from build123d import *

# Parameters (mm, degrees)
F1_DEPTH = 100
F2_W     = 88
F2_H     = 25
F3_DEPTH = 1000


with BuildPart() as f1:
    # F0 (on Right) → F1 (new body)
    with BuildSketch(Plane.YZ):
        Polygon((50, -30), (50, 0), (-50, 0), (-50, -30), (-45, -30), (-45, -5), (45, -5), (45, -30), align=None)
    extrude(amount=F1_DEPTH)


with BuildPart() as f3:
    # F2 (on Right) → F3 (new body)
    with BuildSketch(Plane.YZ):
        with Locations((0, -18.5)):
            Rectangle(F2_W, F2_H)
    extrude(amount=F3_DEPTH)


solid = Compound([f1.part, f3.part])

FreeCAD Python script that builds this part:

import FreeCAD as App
import Part
import Sketcher
from FreeCAD import Vector
Q = App.Units.Quantity

doc = App.newDocument("Part")
body = doc.addObject("PartDesign::Body", "Body")

sketch1 = doc.addObject("Sketcher::SketchObject", "Sketch")
body.addObject(sketch1)
sketch1.AttachmentSupport = (doc.YZ_Plane, [""])
sketch1.MapMode = "FlatFace"
sketch1.addGeometry([
    Part.LineSegment(Vector(50, -30, 0), Vector(50, 0, 0)),
    Part.LineSegment(Vector(50, 0, 0), Vector(-50, 0, 0)),
    Part.LineSegment(Vector(-50, 0, 0), Vector(-50, -30, 0)),
    Part.LineSegment(Vector(-50, -30, 0), Vector(-45, -30, 0)),
    Part.LineSegment(Vector(-45, -30, 0), Vector(-45, -5, 0)),
    Part.LineSegment(Vector(-45, -5, 0), Vector(45, -5, 0)),
    Part.LineSegment(Vector(45, -5, 0), Vector(45, -30, 0)),
    Part.LineSegment(Vector(45, -30, 0), Vector(50, -30, 0)),
], False)
sketch1.addConstraint([
    Sketcher.Constraint("Coincident", 0, 2, 1, 1),
    Sketcher.Constraint("Coincident", 1, 2, 2, 1),
    Sketcher.Constraint("Coincident", 2, 2, 3, 1),
    Sketcher.Constraint("Coincident", 3, 2, 4, 1),
    Sketcher.Constraint("Coincident", 4, 2, 5, 1),
    Sketcher.Constraint("Coincident", 5, 2, 6, 1),
    Sketcher.Constraint("Coincident", 6, 2, 7, 1),
    Sketcher.Constraint("Coincident", 7, 2, 0, 1),
    Sketcher.Constraint("Vertical", 0),
    Sketcher.Constraint("Horizontal", 1),
    Sketcher.Constraint("Vertical", 2),
    Sketcher.Constraint("Horizontal", 3),
    Sketcher.Constraint("Vertical", 4),
    Sketcher.Constraint("Horizontal", 5),
    Sketcher.Constraint("Vertical", 6),
    Sketcher.Constraint("Horizontal", 7),
    Sketcher.Constraint("Symmetric", 0, 2, 1, 2, -1, 1),
    Sketcher.Constraint("Symmetric", 3, 2, 6, 2, -2),
    Sketcher.Constraint("DistanceX", 1, 2, 1, 1, Q("100 mm")),
    Sketcher.Constraint("DistanceX", 3, 1, 3, 2, Q("5 mm")),
    Sketcher.Constraint("DistanceY", 0, 1, 0, 2, Q("30 mm")),
    Sketcher.Constraint("DistanceY", 4, 1, 4, 2, Q("25 mm")),
])
pad1 = doc.addObject("PartDesign::Pad", "Pad")
body.addObject(pad1)
pad1.Profile = sketch1
pad1.Length = 100
body2 = doc.addObject("PartDesign::Body", "Body001")

sketch2 = doc.addObject("Sketcher::SketchObject", "Sketch001")
body2.addObject(sketch2)
sketch2.AttachmentSupport = (doc.getObject("YZ_Plane001"), [""])
sketch2.MapMode = "FlatFace"
sketch2.addGeometry([
    Part.LineSegment(Vector(-44, -6, 0), Vector(-44, -31, 0)),
    Part.LineSegment(Vector(-44, -31, 0), Vector(44, -31, 0)),
    Part.LineSegment(Vector(44, -31, 0), Vector(44, -6, 0)),
    Part.LineSegment(Vector(44, -6, 0), Vector(-44, -6, 0)),
], False)
sketch2.addConstraint([
    Sketcher.Constraint("Coincident", 0, 2, 1, 1),
    Sketcher.Constraint("Coincident", 1, 2, 2, 1),
    Sketcher.Constraint("Coincident", 2, 2, 3, 1),
    Sketcher.Constraint("Coincident", 3, 2, 0, 1),
    Sketcher.Constraint("Vertical", 0),
    Sketcher.Constraint("Horizontal", 1),
    Sketcher.Constraint("Vertical", 2),
    Sketcher.Constraint("Horizontal", 3),
    Sketcher.Constraint("DistanceX", 1, 1, 1, 2, Q("88 mm")),
    Sketcher.Constraint("DistanceY", 0, 2, 0, 1, Q("25 mm")),
    Sketcher.Constraint("DistanceX", 0, 2, -1, 1, Q("44 mm")),
    Sketcher.Constraint("DistanceY", 0, 2, -1, 1, Q("31 mm")),
])
pad2 = doc.addObject("PartDesign::Pad", "Pad001")
body2.addObject(pad2)
pad2.Profile = sketch2
pad2.Length = 1000

doc.recompute()
